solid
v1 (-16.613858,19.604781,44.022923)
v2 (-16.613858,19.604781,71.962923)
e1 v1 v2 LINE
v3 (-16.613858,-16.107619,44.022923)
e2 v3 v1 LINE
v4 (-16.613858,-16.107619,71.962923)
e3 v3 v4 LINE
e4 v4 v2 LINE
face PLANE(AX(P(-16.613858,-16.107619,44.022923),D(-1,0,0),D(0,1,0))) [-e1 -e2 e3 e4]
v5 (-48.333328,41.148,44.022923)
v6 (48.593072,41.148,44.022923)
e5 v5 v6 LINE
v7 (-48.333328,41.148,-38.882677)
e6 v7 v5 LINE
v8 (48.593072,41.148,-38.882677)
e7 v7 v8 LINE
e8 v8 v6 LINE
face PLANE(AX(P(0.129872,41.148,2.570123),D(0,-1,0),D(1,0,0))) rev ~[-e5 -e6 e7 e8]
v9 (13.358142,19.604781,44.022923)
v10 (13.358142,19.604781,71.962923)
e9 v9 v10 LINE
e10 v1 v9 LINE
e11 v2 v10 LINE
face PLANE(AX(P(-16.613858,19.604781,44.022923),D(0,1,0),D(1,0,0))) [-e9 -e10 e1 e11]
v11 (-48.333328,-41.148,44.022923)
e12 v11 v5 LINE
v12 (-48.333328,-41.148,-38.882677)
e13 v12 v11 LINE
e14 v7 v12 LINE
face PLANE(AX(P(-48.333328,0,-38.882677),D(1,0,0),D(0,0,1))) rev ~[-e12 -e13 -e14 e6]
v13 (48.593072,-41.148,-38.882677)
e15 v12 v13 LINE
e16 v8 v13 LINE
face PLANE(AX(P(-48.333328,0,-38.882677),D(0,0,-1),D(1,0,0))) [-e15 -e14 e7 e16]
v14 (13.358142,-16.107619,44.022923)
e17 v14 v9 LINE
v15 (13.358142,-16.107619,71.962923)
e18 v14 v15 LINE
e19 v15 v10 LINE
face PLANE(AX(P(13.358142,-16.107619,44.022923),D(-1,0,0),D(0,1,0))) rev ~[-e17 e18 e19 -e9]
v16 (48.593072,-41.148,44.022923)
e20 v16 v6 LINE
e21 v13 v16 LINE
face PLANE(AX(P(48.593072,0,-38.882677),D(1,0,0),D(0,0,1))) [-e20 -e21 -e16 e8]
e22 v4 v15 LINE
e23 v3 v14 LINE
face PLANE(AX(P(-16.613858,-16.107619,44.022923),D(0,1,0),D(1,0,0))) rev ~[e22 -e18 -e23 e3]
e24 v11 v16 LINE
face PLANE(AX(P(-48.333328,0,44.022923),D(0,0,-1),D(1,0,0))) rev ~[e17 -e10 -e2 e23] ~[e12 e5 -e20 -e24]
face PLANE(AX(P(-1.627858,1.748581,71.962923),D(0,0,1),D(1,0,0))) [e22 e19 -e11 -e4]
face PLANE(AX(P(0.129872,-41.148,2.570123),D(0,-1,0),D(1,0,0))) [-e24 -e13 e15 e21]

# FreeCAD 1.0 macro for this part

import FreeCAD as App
import Part
import Sketcher
from FreeCAD import Vector
Q = App.Units.Quantity


def add_polygon(sketch, points):
    """Adds a closed chain of lines whose ends are joined by coincident constraints."""
    first, n = sketch.GeometryCount, len(points)
    for a, b in zip(points, points[1:] + points[:1]):
        sketch.addGeometry(Part.LineSegment(App.Vector(*a, 0), App.Vector(*b, 0)), False)
    for i in range(n):
        sketch.addConstraint(Sketcher.Constraint("Coincident", first + i, 2, first + (i + 1) % n, 1))

doc = App.newDocument("Part")
params = doc.addObject("Spreadsheet::Sheet", "Params")
for row, (alias, value) in enumerate([
    ("sketch1_width", "3.816 in"),
    ("sketch1_height", "3.264 in"),
    ("pad1_length", "3.24 in"),
    ("sketch2_width", "1.18 in"),
    ("sketch2_height", "1.406 in"),
    ("pad2_length", "1.1 in"),
], start=1):
    params.set(f"A{row}", alias)
    params.set(f"B{row}", "=" + value)
    params.setAlias(f"B{row}", alias)

body = doc.addObject("PartDesign::Body", "Body")

# Sketch on XZ plane
sketch1 = doc.addObject("Sketcher::SketchObject", "Sketch")
body.addObject(sketch1)
sketch1.AttachmentSupport = (doc.XZ_Plane, [""])
sketch1.MapMode = "FlatFace"
add_polygon(sketch1, [(-48, 44), (-48, -39), (49, -39), (49, 44)])  # lines 0-3
sketch1.addConstraint([
    Sketcher.Constraint("Vertical", 0),
    Sketcher.Constraint("Horizontal", 1),
    Sketcher.Constraint("Vertical", 2),
    Sketcher.Constraint("Horizontal", 3),
    Sketcher.Constraint("DistanceX", 1, 1, 1, 2, Q("3.816 in")),
    Sketcher.Constraint("DistanceY", 0, 2, 0, 1, Q("3.264 in")),
    Sketcher.Constraint("DistanceX", 0, 2, -1, 1, Q("48.333328 mm")),
    Sketcher.Constraint("DistanceY", 0, 2, -1, 1, Q("38.882677 mm")),
])
sketch1.setExpression("Constraints[8]", "Params.sketch1_width")
sketch1.setExpression("Constraints[9]", "Params.sketch1_height")
pad1 = doc.addObject("PartDesign::Pad", "Pad")
body.addObject(pad1)
pad1.Profile = sketch1
pad1.setExpression("Length", "Params.pad1_length")
pad1.Midplane = True

# Sketch on XY plane
sketch2 = doc.addObject("Sketcher::SketchObject", "Sketch001")
body.addObject(sketch2)
sketch2.AttachmentSupport = (doc.XY_Plane, [""])
sketch2.MapMode = "FlatFace"
sketch2.AttachmentOffset = App.Placement(Vector(0, 0, 44.022923), App.Rotation())
add_polygon(sketch2, [(-17, 20), (-17, -16), (13, -16), (13, 20)])  # lines 0-3
sketch2.addConstraint([
    Sketcher.Constraint("Vertical", 0),
    Sketcher.Constraint("Horizontal", 1),
    Sketcher.Constraint("Vertical", 2),
    Sketcher.Constraint("Horizontal", 3),
    Sketcher.Constraint("DistanceX", 1, 1, 1, 2, Q("1.18 in")),
    Sketcher.Constraint("DistanceY", 0, 2, 0, 1, Q("1.406 in")),
    Sketcher.Constraint("DistanceX", 0, 2, -1, 1, Q("16.613858 mm")),
    Sketcher.Constraint("DistanceY", 0, 2, -1, 1, Q("16.107619 mm")),
])
sketch2.setExpression("Constraints[8]", "Params.sketch2_width")
sketch2.setExpression("Constraints[9]", "Params.sketch2_height")
pad2 = doc.addObject("PartDesign::Pad", "Pad001")
body.addObject(pad2)
pad2.Profile = sketch2
pad2.setExpression("Length", "Params.pad2_length")

doc.recompute()
